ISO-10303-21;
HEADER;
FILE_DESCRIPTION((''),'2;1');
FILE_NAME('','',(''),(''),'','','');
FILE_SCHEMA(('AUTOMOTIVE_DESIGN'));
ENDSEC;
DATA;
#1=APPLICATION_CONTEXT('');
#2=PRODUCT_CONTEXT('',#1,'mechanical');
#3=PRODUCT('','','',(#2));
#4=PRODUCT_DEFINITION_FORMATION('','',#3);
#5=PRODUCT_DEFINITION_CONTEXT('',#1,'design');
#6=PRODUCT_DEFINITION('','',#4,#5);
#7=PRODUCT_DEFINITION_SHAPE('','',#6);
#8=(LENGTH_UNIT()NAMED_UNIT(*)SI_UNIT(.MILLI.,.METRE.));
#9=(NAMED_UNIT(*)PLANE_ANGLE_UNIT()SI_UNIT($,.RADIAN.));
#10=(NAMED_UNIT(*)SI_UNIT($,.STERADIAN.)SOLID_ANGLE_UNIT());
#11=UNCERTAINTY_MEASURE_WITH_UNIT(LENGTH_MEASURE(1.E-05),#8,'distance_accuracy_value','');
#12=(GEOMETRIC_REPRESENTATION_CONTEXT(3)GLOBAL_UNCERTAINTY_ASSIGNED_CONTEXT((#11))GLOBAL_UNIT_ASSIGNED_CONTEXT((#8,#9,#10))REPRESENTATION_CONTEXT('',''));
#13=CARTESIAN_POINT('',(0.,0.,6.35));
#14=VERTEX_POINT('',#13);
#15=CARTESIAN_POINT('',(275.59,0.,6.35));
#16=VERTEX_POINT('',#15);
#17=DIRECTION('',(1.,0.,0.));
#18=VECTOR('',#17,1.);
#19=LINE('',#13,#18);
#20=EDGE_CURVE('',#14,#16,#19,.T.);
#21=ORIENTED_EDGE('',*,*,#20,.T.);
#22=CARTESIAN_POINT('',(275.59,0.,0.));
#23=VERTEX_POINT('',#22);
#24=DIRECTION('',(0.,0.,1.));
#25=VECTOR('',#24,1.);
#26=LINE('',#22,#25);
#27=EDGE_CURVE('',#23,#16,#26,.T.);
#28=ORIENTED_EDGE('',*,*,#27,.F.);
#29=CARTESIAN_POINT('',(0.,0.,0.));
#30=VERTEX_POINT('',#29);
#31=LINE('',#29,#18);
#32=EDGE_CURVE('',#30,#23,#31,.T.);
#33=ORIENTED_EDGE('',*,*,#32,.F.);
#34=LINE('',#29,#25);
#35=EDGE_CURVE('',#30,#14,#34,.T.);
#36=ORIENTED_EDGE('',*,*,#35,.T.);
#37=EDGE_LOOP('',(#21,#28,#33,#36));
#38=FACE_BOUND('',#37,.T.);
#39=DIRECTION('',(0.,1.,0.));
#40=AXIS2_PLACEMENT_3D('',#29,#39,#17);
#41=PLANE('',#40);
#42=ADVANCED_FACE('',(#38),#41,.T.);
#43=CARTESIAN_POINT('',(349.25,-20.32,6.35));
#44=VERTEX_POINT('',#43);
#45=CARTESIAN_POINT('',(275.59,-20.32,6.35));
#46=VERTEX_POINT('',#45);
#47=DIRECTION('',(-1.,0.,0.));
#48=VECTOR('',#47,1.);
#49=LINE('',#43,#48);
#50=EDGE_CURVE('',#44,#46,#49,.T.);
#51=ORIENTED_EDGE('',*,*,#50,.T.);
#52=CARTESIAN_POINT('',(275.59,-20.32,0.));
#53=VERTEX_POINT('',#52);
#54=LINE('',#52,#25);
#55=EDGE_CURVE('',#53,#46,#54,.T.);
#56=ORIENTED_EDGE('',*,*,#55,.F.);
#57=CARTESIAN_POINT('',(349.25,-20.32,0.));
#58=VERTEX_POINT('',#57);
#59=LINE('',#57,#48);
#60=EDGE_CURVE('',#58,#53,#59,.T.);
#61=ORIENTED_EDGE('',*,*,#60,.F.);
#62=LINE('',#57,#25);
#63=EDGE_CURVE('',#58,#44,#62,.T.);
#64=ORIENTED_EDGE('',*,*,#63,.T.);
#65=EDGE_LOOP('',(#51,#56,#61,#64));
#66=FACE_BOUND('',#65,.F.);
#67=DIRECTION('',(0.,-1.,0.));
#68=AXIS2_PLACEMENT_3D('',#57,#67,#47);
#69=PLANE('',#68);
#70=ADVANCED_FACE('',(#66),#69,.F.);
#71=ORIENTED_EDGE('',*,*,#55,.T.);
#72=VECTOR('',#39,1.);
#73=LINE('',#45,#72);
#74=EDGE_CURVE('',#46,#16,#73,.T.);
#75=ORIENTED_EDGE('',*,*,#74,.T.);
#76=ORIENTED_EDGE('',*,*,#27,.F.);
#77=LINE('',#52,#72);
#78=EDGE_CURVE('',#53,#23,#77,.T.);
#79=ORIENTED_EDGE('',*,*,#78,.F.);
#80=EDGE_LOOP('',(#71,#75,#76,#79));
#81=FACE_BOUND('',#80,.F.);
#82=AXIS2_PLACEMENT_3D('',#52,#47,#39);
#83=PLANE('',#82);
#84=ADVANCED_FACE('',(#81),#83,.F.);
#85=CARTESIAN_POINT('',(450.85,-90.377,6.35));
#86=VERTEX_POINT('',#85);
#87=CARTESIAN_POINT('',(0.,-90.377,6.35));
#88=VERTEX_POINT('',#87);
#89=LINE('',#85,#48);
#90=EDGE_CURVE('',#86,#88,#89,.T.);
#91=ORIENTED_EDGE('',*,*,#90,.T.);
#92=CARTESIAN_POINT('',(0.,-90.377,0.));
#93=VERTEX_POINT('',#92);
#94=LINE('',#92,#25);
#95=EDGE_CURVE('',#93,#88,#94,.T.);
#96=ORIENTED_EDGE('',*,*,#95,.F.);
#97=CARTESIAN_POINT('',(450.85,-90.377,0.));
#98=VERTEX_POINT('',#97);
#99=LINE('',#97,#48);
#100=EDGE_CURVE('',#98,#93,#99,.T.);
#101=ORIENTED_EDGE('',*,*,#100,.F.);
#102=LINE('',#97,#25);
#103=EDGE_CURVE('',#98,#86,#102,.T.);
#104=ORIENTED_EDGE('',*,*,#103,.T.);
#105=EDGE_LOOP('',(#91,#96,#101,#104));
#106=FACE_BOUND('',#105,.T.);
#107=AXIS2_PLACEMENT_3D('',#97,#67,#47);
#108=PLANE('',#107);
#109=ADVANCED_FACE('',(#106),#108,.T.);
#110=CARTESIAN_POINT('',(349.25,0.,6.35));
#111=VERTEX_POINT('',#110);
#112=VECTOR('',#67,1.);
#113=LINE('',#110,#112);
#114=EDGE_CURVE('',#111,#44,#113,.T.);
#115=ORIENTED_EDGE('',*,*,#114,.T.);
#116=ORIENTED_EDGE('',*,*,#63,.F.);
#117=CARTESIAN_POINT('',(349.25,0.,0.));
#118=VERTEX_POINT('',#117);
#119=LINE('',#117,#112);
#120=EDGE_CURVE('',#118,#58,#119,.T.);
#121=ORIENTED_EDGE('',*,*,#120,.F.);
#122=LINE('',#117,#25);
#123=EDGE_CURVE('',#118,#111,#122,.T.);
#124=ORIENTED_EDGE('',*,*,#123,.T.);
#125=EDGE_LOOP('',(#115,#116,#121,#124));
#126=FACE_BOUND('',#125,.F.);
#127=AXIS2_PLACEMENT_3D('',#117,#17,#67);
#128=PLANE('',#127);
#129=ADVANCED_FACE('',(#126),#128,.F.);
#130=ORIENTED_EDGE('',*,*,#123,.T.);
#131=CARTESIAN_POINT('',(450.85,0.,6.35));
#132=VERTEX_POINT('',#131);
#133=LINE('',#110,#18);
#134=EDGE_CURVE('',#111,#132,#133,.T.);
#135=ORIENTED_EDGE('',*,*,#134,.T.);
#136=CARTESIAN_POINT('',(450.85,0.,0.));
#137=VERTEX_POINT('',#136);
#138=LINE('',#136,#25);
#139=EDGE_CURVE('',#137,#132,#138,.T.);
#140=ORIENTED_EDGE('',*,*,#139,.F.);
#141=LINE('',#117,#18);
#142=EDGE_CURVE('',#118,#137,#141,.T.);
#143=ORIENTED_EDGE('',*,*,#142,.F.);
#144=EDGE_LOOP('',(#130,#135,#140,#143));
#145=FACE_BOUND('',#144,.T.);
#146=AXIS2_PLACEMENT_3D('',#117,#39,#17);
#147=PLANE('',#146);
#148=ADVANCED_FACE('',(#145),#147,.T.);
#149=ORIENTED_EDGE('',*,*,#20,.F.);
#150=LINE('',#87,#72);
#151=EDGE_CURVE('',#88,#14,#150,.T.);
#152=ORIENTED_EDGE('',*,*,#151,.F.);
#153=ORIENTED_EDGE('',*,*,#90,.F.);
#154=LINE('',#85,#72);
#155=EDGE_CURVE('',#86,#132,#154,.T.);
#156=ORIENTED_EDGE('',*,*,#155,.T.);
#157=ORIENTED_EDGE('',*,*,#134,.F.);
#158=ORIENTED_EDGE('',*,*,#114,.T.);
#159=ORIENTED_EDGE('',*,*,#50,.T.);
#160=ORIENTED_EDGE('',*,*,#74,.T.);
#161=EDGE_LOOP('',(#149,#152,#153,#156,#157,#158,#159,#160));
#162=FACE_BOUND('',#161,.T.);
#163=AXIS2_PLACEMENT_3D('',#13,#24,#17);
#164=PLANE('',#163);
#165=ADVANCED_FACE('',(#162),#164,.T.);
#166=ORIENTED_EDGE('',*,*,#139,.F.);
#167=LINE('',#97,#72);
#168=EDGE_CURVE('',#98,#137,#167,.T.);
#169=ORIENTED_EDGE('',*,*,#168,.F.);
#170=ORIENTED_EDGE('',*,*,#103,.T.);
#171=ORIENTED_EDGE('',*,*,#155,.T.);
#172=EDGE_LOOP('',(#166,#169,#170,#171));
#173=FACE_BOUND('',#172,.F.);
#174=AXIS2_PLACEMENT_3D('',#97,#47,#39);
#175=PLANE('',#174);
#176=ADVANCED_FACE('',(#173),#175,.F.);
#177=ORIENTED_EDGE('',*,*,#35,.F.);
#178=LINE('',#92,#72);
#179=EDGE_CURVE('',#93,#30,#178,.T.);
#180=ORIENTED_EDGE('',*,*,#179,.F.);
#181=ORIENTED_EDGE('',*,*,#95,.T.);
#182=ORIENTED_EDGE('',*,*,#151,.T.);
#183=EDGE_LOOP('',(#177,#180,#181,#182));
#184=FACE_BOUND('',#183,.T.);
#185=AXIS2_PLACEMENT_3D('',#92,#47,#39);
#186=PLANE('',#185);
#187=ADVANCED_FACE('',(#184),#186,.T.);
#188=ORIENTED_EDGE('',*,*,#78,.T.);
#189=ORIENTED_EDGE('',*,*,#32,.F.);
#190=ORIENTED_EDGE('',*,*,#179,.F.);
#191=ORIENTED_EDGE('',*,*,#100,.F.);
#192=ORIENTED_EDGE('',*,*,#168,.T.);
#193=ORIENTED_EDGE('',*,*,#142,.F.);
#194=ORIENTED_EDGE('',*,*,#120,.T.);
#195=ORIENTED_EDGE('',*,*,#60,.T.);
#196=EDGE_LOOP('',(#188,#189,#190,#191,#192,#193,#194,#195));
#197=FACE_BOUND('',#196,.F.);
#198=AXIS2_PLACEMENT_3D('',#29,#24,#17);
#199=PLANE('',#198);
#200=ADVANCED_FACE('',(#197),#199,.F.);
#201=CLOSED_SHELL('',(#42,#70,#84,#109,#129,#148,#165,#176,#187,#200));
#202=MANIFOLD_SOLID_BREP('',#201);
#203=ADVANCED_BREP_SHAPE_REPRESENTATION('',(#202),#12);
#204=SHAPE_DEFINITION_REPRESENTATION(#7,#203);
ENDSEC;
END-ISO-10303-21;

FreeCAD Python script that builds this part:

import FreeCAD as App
import Part
import Sketcher
Q = App.Units.Quantity

doc = App.newDocument("Part")
params = doc.addObject("Spreadsheet::Sheet", "Params")
for row, (alias, value) in enumerate([
    ("sketch1_width", "4 in"),
    ("sketch1_width2", "2.9 in"),
    ("sketch1_height", "0.8 in"),
    ("sketch1_width3", "17.75 in"),
    ("pad1_length", "0.25 in"),
], start=1):
    params.set(f"A{row}", alias)
    params.set(f"B{row}", "=" + value)
    params.setAlias(f"B{row}", alias)

body = doc.addObject("PartDesign::Body", "Body")

# Sketch on XY plane
sketch1 = doc.addObject("Sketcher::SketchObject", "Sketch")
body.addObject(sketch1)
sketch1.AttachmentSupport = (doc.XY_Plane, [""])
sketch1.MapMode = "FlatFace"
sketch1.addGeometry(Part.LineSegment(App.Vector(0, -90, 0), App.Vector(451, -90, 0)), False)
sketch1.addGeometry(Part.LineSegment(App.Vector(451, -90, 0), App.Vector(451, 0, 0)), False)
sketch1.addGeometry(Part.LineSegment(App.Vector(451, 0, 0), App.Vector(349, 0, 0)), False)
sketch1.addGeometry(Part.LineSegment(App.Vector(349, 0, 0), App.Vector(349, -20, 0)), False)
sketch1.addGeometry(Part.LineSegment(App.Vector(349, -20, 0), App.Vector(276, -20, 0)), False)
sketch1.addGeometry(Part.LineSegment(App.Vector(276, -20, 0), App.Vector(276, 0, 0)), False)
sketch1.addGeometry(Part.LineSegment(App.Vector(276, 0, 0), App.Vector(0, 0, 0)), False)
sketch1.addGeometry(Part.LineSegment(App.Vector(0, 0, 0), App.Vector(0, -90, 0)), False)
sketch1.addConstraint(Sketcher.Constraint("Coincident", 0, 2, 1, 1))
sketch1.addConstraint(Sketcher.Constraint("Coincident", 1, 2, 2, 1))
sketch1.addConstraint(Sketcher.Constraint("Coincident", 2, 2, 3, 1))
sketch1.addConstraint(Sketcher.Constraint("Coincident", 3, 2, 4, 1))
sketch1.addConstraint(Sketcher.Constraint("Coincident", 4, 2, 5, 1))
sketch1.addConstraint(Sketcher.Constraint("Coincident", 5, 2, 6, 1))
sketch1.addConstraint(Sketcher.Constraint("Coincident", 6, 2, 7, 1))
sketch1.addConstraint(Sketcher.Constraint("Coincident", 7, 2, 0, 1))
sketch1.addConstraint(Sketcher.Constraint("Horizontal", 0))
sketch1.addConstraint(Sketcher.Constraint("Vertical", 1))
sketch1.addConstraint(Sketcher.Constraint("Horizontal", 2))
sketch1.addConstraint(Sketcher.Constraint("Vertical", 3))
sketch1.addConstraint(Sketcher.Constraint("Horizontal", 4))
sketch1.addConstraint(Sketcher.Constraint("Vertical", 5))
sketch1.addConstraint(Sketcher.Constraint("Horizontal", 6))
sketch1.addConstraint(Sketcher.Constraint("Vertical", 7))
sketch1.addConstraint(Sketcher.Constraint("Coincident", 6, 2, -1, 1))
sketch1.addConstraint(Sketcher.Constraint("PointOnObject", 1, 2, -1))
sketch1.addConstraint(Sketcher.Constraint("DistanceX", 2, 2, 2, 1, Q("4 in")))
sketch1.addConstraint(Sketcher.Constraint("DistanceX", 4, 2, 4, 1, Q("2.9 in")))
sketch1.addConstraint(Sketcher.Constraint("DistanceY", 3, 2, 3, 1, Q("0.8 in")))
sketch1.addConstraint(Sketcher.Constraint("DistanceX", 0, 1, 0, 2, Q("17.75 in")))
sketch1.addConstraint(Sketcher.Constraint("DistanceY", 1, 1, 1, 2, 90.377))
sketch1.setExpression("Constraints[18]", "Params.sketch1_width")
sketch1.setExpression("Constraints[19]", "Params.sketch1_width2")
sketch1.setExpression("Constraints[20]", "Params.sketch1_height")
sketch1.setExpression("Constraints[21]", "Params.sketch1_width3")
pad1 = doc.addObject("PartDesign::Pad", "Pad")
body.addObject(pad1)
pad1.Profile = sketch1
pad1.setExpression("Length", "Params.pad1_length")

doc.recompute()
